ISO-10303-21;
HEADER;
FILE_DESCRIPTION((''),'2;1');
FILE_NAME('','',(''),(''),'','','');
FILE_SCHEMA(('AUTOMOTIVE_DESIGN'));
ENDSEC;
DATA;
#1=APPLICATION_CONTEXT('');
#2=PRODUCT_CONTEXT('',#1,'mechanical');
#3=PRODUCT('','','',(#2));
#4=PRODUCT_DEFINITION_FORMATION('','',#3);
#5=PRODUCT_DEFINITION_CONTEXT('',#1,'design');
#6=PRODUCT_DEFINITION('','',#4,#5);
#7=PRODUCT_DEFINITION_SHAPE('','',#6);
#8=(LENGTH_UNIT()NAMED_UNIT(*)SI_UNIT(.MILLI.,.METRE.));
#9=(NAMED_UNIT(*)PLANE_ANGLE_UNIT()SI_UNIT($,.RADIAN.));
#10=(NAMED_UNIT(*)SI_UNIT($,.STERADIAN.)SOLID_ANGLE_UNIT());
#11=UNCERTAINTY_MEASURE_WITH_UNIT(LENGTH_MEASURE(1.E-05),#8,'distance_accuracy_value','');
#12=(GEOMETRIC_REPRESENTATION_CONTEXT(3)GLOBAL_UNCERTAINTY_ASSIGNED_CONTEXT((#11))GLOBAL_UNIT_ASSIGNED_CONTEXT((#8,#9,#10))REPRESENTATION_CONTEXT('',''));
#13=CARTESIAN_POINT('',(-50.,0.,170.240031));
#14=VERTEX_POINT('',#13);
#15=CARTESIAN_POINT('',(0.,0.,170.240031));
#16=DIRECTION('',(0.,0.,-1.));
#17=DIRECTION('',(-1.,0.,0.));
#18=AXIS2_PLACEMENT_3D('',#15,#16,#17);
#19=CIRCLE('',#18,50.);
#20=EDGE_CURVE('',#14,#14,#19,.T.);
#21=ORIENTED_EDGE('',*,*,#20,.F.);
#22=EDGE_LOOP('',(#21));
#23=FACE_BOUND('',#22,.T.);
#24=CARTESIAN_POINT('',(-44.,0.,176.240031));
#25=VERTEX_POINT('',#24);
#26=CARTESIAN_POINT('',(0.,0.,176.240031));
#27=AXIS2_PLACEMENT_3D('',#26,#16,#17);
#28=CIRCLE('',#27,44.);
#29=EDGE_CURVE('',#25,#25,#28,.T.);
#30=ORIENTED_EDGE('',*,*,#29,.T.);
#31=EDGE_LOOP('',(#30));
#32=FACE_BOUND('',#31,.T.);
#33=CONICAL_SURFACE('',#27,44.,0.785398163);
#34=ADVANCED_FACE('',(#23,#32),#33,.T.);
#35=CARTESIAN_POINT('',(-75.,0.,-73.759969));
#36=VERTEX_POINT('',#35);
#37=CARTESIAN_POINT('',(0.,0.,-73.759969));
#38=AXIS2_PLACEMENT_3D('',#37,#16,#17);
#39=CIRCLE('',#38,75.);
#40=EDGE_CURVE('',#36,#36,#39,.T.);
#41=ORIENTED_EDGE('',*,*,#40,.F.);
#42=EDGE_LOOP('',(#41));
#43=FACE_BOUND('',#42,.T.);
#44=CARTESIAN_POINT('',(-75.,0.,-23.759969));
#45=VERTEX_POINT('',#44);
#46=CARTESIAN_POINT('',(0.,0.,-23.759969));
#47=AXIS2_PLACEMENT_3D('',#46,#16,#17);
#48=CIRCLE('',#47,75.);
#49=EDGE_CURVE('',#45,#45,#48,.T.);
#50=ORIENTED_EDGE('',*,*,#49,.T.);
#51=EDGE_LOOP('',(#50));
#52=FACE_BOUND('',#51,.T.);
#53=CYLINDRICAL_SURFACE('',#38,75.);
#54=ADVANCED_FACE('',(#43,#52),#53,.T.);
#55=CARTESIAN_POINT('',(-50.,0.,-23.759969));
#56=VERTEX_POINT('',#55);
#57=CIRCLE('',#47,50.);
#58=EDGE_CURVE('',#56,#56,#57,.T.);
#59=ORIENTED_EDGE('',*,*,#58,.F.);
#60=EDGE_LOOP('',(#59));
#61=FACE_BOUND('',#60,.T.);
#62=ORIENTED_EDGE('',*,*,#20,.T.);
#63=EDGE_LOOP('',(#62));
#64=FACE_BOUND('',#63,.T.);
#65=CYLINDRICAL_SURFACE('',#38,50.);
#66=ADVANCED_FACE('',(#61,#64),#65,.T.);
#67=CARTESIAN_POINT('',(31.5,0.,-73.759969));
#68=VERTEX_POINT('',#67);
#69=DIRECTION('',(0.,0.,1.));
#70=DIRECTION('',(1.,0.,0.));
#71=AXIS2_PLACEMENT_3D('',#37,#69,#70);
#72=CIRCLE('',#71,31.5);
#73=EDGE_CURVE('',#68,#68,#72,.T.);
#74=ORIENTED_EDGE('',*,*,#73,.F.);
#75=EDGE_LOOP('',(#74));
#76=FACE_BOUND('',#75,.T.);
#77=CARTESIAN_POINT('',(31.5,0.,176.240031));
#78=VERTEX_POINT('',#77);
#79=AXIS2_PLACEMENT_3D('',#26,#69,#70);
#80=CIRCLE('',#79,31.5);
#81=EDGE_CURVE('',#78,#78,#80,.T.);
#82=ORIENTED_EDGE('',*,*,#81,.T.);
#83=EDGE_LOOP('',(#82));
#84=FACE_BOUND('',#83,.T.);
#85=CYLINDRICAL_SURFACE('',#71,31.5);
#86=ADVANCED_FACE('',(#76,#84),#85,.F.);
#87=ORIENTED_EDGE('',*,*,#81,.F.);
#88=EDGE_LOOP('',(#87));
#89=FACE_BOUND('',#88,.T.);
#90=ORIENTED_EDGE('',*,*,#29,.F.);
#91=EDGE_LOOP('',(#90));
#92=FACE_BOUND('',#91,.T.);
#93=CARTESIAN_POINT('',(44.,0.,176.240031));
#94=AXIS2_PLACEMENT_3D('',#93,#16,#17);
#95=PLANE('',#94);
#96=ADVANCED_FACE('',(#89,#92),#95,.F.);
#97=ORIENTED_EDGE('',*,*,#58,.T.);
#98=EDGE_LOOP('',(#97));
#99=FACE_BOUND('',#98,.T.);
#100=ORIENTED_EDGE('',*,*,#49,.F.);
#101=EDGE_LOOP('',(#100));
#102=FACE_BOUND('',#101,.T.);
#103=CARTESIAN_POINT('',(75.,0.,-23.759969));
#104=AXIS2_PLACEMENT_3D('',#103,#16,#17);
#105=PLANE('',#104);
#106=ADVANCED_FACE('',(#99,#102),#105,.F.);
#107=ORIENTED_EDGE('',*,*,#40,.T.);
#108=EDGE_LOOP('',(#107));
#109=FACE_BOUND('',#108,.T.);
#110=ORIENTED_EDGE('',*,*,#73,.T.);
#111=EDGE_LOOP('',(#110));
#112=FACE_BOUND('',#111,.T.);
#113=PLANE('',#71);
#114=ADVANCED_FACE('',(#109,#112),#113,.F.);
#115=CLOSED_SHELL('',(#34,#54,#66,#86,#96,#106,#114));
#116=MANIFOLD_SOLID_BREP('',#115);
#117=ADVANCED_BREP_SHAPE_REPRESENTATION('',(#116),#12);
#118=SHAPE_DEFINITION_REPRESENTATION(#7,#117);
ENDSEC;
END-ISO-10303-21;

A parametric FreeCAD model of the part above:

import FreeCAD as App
import Part
import Sketcher
from FreeCAD import Vector


def add_polygon(sketch, points):
    """Adds a closed chain of lines whose ends are joined by coincident constraints."""
    first, n = sketch.GeometryCount, len(points)
    for a, b in zip(points, points[1:] + points[:1]):
        sketch.addGeometry(Part.LineSegment(App.Vector(*a, 0), App.Vector(*b, 0)), False)
    for i in range(n):
        sketch.addConstraint(Sketcher.Constraint("Coincident", first + i, 2, first + (i + 1) % n, 1))

doc = App.newDocument("Part")
body = doc.addObject("PartDesign::Body", "Body")

# Sketch on XZ plane
sketch1 = body.newObject("Sketcher::SketchObject", "Sketch")
sketch1.AttachmentSupport = (doc.getObject("XZ_Plane"), [""])
sketch1.MapMode = "FlatFace"
add_polygon(sketch1, [(75, -74), (0, -74), (0, 176), (44, 176), (50, 170), (50, -24), (75, -24)])  # lines 0-6
sketch1.addConstraint(Sketcher.Constraint("Horizontal", 0))
sketch1.addConstraint(Sketcher.Constraint("Vertical", 1))
sketch1.addConstraint(Sketcher.Constraint("Horizontal", 2))
sketch1.addConstraint(Sketcher.Constraint("Vertical", 4))
sketch1.addConstraint(Sketcher.Constraint("Horizontal", 5))
sketch1.addConstraint(Sketcher.Constraint("Vertical", 6))
sketch1.addConstraint(Sketcher.Constraint("PointOnObject", 0, 2, -2))
sketch1.addConstraint(Sketcher.Constraint("DistanceX", 0, 2, 0, 1, 75.0))
sketch1.addConstraint(Sketcher.Constraint("DistanceX", 2, 1, 2, 2, 44.0))
sketch1.addConstraint(Sketcher.Constraint("DistanceX", 5, 1, 5, 2, 25.0))
sketch1.addConstraint(Sketcher.Constraint("DistanceY", 1, 1, 1, 2, 250.0))
sketch1.addConstraint(Sketcher.Constraint("DistanceY", 4, 2, 4, 1, 194.0))
sketch1.addConstraint(Sketcher.Constraint("DistanceY", 6, 2, 6, 1, 50.0))
sketch1.addConstraint(Sketcher.Constraint("DistanceY", 0, 2, -1, 1, 73.759969))
revolution = body.newObject("PartDesign::Revolution", "Revolution")
revolution.Profile = sketch1
revolution.ReferenceAxis = (sketch1, ["V_Axis"])
revolution.Angle = 360

# Sketch on XY plane
sketch2 = body.newObject("Sketcher::SketchObject", "Sketch001")
sketch2.AttachmentSupport = (doc.getObject("XY_Plane"), [""])
sketch2.MapMode = "FlatFace"
sketch2.AttachmentOffset = App.Placement(Vector(0, 0, 176.240031), App.Rotation())
sketch2.addGeometry(Part.Circle(Vector(0, 0, 0), Vector(0, 0, 1), 32), False)
sketch2.addConstraint(Sketcher.Constraint("Coincident", 0, 3, -1, 1))
sketch2.addConstraint(Sketcher.Constraint("Diameter", 0, 63.0))
pocket1 = body.newObject("PartDesign::Pocket", "Pocket")
pocket1.Profile = sketch2
pocket1.Type = "ThroughAll"

doc.recompute()
